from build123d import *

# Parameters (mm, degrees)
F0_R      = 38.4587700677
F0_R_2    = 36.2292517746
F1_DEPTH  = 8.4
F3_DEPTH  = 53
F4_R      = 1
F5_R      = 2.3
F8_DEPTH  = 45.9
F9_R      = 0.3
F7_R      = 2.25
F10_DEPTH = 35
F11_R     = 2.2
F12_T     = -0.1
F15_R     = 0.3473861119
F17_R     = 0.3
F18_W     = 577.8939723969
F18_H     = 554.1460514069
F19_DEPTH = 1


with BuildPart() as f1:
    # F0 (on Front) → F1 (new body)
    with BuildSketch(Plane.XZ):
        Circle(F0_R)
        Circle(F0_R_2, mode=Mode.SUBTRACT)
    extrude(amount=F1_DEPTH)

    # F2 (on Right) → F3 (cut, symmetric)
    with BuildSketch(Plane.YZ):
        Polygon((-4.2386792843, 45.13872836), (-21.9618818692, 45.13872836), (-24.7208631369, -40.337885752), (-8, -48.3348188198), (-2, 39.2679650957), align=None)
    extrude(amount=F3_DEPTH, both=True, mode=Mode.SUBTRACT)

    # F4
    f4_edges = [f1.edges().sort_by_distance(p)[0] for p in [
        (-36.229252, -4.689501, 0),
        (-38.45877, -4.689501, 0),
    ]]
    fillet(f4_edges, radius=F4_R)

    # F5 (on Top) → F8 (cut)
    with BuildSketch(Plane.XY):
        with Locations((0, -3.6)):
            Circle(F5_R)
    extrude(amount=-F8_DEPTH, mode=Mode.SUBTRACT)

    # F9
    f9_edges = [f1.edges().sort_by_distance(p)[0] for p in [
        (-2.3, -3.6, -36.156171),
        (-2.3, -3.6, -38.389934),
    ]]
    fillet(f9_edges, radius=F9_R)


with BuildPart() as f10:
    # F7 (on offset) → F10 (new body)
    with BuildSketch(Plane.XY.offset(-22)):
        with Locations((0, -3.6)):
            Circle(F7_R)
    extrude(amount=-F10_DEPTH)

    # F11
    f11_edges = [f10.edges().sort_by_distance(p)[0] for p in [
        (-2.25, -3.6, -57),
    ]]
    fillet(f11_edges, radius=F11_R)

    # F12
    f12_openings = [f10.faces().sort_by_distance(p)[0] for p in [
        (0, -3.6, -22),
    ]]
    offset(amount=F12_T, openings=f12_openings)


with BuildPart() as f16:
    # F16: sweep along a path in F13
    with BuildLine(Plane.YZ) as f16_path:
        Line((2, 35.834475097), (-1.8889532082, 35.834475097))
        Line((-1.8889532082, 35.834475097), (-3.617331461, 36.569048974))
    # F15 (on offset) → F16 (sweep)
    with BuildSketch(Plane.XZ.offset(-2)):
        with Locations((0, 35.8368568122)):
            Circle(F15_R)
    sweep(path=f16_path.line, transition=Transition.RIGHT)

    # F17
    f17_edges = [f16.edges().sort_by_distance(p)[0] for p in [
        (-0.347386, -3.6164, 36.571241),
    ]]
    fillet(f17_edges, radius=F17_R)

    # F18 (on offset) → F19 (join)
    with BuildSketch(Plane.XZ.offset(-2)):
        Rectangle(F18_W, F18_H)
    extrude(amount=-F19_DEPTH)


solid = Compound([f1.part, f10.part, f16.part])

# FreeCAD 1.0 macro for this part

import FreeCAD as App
import Part
import Sketcher
from FreeCAD import Vector


def edges_at(feature, points):
    """Names of the edges that pass closest to the given points."""
    edges = feature.Shape.Edges
    near = lambda p: min(range(len(edges)), key=lambda i: edges[i].distToShape(Part.Vertex(*p))[0])
    return sorted({f"Edge{near(p) + 1}" for p in points})


def faces_at(feature, points):
    """Names of the faces that lie closest to the given points."""
    faces = feature.Shape.Faces
    near = lambda p: min(range(len(faces)), key=lambda i: faces[i].distToShape(Part.Vertex(*p))[0])
    return sorted({f"Face{near(p) + 1}" for p in points})

doc = App.newDocument("Part")
params = doc.addObject("Spreadsheet::Sheet", "Params")
for row, (alias, value) in enumerate([
    ("pad1_length", "8.4 mm"),
    ("pocket1_length", "106 mm"),
    ("fillet_radius", "1 mm"),
    ("sketch3_diameter", "4.6 mm"),
    ("pocket2_length", "45.9 mm"),
    ("fillet2_radius", "0.3 mm"),
    ("sketch4_diameter", "4.5 mm"),
    ("pad2_length", "35 mm"),
    ("fillet3_radius", "2.2 mm"),
    ("thickness_wall", "0.1 mm"),
    ("fillet4_radius", "0.3 mm"),
    ("pad3_length", "1 mm"),
], start=1):
    params.set(f"A{row}", alias)
    params.set(f"B{row}", "=" + value)
    params.setAlias(f"B{row}", alias)

body = doc.addObject("PartDesign::Body", "Body")

sketch1 = doc.addObject("Sketcher::SketchObject", "Sketch")
body.addObject(sketch1)
sketch1.AttachmentSupport = (doc.XZ_Plane, [""])
sketch1.MapMode = "FlatFace"
sketch1.addGeometry([
    Part.Circle(Vector(0, 0, 0), Vector(0, 0, 1), 38),
    Part.Circle(Vector(0, 0, 0), Vector(0, 0, 1), 36),
], False)
sketch1.addConstraint([
    Sketcher.Constraint("Coincident", 0, 3, -1, 1),
    Sketcher.Constraint("Coincident", 1, 3, -1, 1),
    Sketcher.Constraint("Diameter", 0, 76.91754),
    Sketcher.Constraint("Diameter", 1, 72.458504),
])
pad1 = doc.addObject("PartDesign::Pad", "Pad")
body.addObject(pad1)
pad1.Profile = sketch1
pad1.setExpression("Length", "Params.pad1_length")

sketch2 = doc.addObject("Sketcher::SketchObject", "Sketch001")
body.addObject(sketch2)
sketch2.AttachmentSupport = (doc.YZ_Plane, [""])
sketch2.MapMode = "FlatFace"
sketch2.addGeometry([
    Part.LineSegment(Vector(-4, 45, 0), Vector(-22, 45, 0)),
    Part.LineSegment(Vector(-22, 45, 0), Vector(-25, -40, 0)),
    Part.LineSegment(Vector(-25, -40, 0), Vector(-8, -48, 0)),
    Part.LineSegment(Vector(-8, -48, 0), Vector(-2, 39, 0)),
    Part.LineSegment(Vector(-2, 39, 0), Vector(-4, 45, 0)),
], False)
sketch2.addConstraint([
    Sketcher.Constraint("Coincident", 0, 2, 1, 1),
    Sketcher.Constraint("Coincident", 1, 2, 2, 1),
    Sketcher.Constraint("Coincident", 2, 2, 3, 1),
    Sketcher.Constraint("Coincident", 3, 2, 4, 1),
    Sketcher.Constraint("Coincident", 4, 2, 0, 1),
    Sketcher.Constraint("Horizontal", 0),
    Sketcher.Constraint("DistanceX", 2, 2, -1, 1, 8.0),
    Sketcher.Constraint("DistanceX", 3, 2, -1, 1, 2.0),
    Sketcher.Constraint("Distance", 1, 85.521129),
    Sketcher.Constraint("DistanceX", 0, 2, 0, 1, 17.723203),
    Sketcher.Constraint("DistanceX", 0, 2, -1, 1, 21.961882),
    Sketcher.Constraint("DistanceY", -1, 1, 0, 2, 45.138728),
    Sketcher.Constraint("DistanceY", 2, 2, -1, 1, 48.334819),
    Sketcher.Constraint("DistanceX", 1, 2, 0, 2, 2.758981),
    Sketcher.Constraint("DistanceY", 1, 2, 3, 2, 79.605851),
])
pocket1 = doc.addObject("PartDesign::Pocket", "Pocket")
body.addObject(pocket1)
pocket1.Profile = sketch2
pocket1.setExpression("Length", "Params.pocket1_length")
pocket1.Midplane = True
doc.recompute()

fillet = doc.addObject("PartDesign::Fillet", "Fillet")
body.addObject(fillet)
fillet.Base = (pocket1, edges_at(pocket1, [(-36.229, -4.69, 0), (-38.459, -4.69, 0)]))
fillet.setExpression("Radius", "Params.fillet_radius")

sketch3 = doc.addObject("Sketcher::SketchObject", "Sketch002")
body.addObject(sketch3)
sketch3.AttachmentSupport = (doc.XY_Plane, [""])
sketch3.MapMode = "FlatFace"
sketch3.addGeometry(Part.Circle(Vector(0, -3.6, 0), Vector(0, 0, 1), 2.3), False)
sketch3.addConstraint([
    Sketcher.Constraint("PointOnObject", 0, 3, -2),
    Sketcher.Constraint("Diameter", 0, 4.6),
    Sketcher.Constraint("DistanceY", 0, 3, -1, 1, 3.6),
])
sketch3.setExpression("Constraints[1]", "Params.sketch3_diameter")
pocket2 = doc.addObject("PartDesign::Pocket", "Pocket001")
body.addObject(pocket2)
pocket2.Profile = sketch3
pocket2.setExpression("Length", "Params.pocket2_length")
doc.recompute()

fillet2 = doc.addObject("PartDesign::Fillet", "Fillet001")
body.addObject(fillet2)
fillet2.Base = (pocket2, edges_at(pocket2, [(-2.3, -3.6, -36.156), (-2.3, -3.6, -38.39)]))
fillet2.setExpression("Radius", "Params.fillet2_radius")
body2 = doc.addObject("PartDesign::Body", "Body001")

sketch4 = doc.addObject("Sketcher::SketchObject", "Sketch003")
body2.addObject(sketch4)
sketch4.AttachmentSupport = (doc.getObject("XY_Plane001"), [""])
sketch4.MapMode = "FlatFace"
sketch4.AttachmentOffset = App.Placement(Vector(0, 0, -22), App.Rotation())
sketch4.addGeometry(Part.Circle(Vector(0, -3.6, 0), Vector(0, 0, 1), 2.2), False)
sketch4.addConstraint([
    Sketcher.Constraint("PointOnObject", 0, 3, -2),
    Sketcher.Constraint("Diameter", 0, 4.5),
    Sketcher.Constraint("DistanceY", 0, 3, -1, 1, 3.6),
])
sketch4.setExpression("Constraints[1]", "Params.sketch4_diameter")
pad2 = doc.addObject("PartDesign::Pad", "Pad001")
body2.addObject(pad2)
pad2.Profile = sketch4
pad2.setExpression("Length", "Params.pad2_length")
pad2.Reversed = True
doc.recompute()

fillet3 = doc.addObject("PartDesign::Fillet", "Fillet002")
body2.addObject(fillet3)
fillet3.Base = (pad2, edges_at(pad2, [(-2.25, -3.6, -57)]))
fillet3.setExpression("Radius", "Params.fillet3_radius")
doc.recompute()

thickness = doc.addObject("PartDesign::Thickness", "Thickness")
body2.addObject(thickness)
thickness.Base = (fillet3, faces_at(fillet3, [(0, -3.6, -22)]))
thickness.setExpression("Value", "Params.thickness_wall")
thickness.Reversed = True
thickness.Join = "Arc"
body3 = doc.addObject("PartDesign::Body", "Body002")

sketch5 = doc.addObject("Sketcher::SketchObject", "Sketch004")
body3.addObject(sketch5)
sketch5.AttachmentSupport = (doc.getObject("XZ_Plane002"), [""])
sketch5.MapMode = "FlatFace"
sketch5.AttachmentOffset = App.Placement(Vector(0, 0, -2), App.Rotation())
sketch5.addGeometry(Part.Circle(Vector(0, 35.84, 0), Vector(0, 0, 1), 0.35), False)
sketch5.addConstraint([
    Sketcher.Constraint("PointOnObject", 0, 3, -2),
    Sketcher.Constraint("Diameter", 0, 0.694772),
    Sketcher.Constraint("DistanceY", -1, 1, 0, 3, 35.836857),
])

sketch6 = doc.addObject("Sketcher::SketchObject", "Sketch005")
body3.addObject(sketch6)
sketch6.AttachmentSupport = (doc.getObject("YZ_Plane002"), [""])
sketch6.MapMode = "FlatFace"
sketch6.addGeometry([
    Part.LineSegment(Vector(2, 35.8, 0), Vector(-1.9, 35.8, 0)),
    Part.LineSegment(Vector(-1.9, 35.8, 0), Vector(-3.6, 36.6, 0)),
], False)
sketch6.addConstraint([
    Sketcher.Constraint("Coincident", 0, 2, 1, 1),
    Sketcher.Constraint("Horizontal", 0),
    Sketcher.Constraint("DistanceX", -1, 1, 0, 1, 2.0),
    Sketcher.Constraint("Distance", 1, 1.878002),
    Sketcher.Constraint("DistanceX", 0, 2, 0, 1, 3.888953),
    Sketcher.Constraint("DistanceX", 1, 2, -1, 1, 3.617331),
    Sketcher.Constraint("DistanceY", -1, 1, 1, 2, 36.569049),
])
doc.recompute()

additivepipe = doc.addObject("PartDesign::AdditivePipe", "AdditivePipe")
body3.addObject(additivepipe)
additivepipe.Profile = sketch5
additivepipe.Spine = (sketch6, ["Edge1", "Edge2"])
additivepipe.Transition = "Right corner"
doc.recompute()

fillet4 = doc.addObject("PartDesign::Fillet", "Fillet003")
body3.addObject(fillet4)
fillet4.Base = (additivepipe, edges_at(additivepipe, [(-0.347, -3.616, 36.571)]))
fillet4.setExpression("Radius", "Params.fillet4_radius")

sketch7 = doc.addObject("Sketcher::SketchObject", "Sketch006")
body3.addObject(sketch7)
sketch7.AttachmentSupport = (doc.getObject("XZ_Plane002"), [""])
sketch7.MapMode = "FlatFace"
sketch7.AttachmentOffset = App.Placement(Vector(0, 0, -2), App.Rotation())
sketch7.addGeometry([
    Part.LineSegment(Vector(-289, 277, 0), Vector(-289, -277, 0)),
    Part.LineSegment(Vector(-289, -277, 0), Vector(289, -277, 0)),
    Part.LineSegment(Vector(289, -277, 0), Vector(289, 277, 0)),
    Part.LineSegment(Vector(289, 277, 0), Vector(-289, 277, 0)),
], False)
sketch7.addConstraint([
    Sketcher.Constraint("Coincident", 0, 2, 1, 1),
    Sketcher.Constraint("Coincident", 1, 2, 2, 1),
    Sketcher.Constraint("Coincident", 2, 2, 3, 1),
    Sketcher.Constraint("Coincident", 3, 2, 0, 1),
    Sketcher.Constraint("Vertical", 0),
    Sketcher.Constraint("Horizontal", 1),
    Sketcher.Constraint("Vertical", 2),
    Sketcher.Constraint("Horizontal", 3),
    Sketcher.Constraint("Symmetric", 0, 2, 2, 2, -1, 1),
    Sketcher.Constraint("DistanceY", 0, 2, 0, 1, 554.146051),
    Sketcher.Constraint("DistanceX", 1, 1, 1, 2, 577.893972),
])
pad3 = doc.addObject("PartDesign::Pad", "Pad002")
body3.addObject(pad3)
pad3.Profile = sketch7
pad3.setExpression("Length", "Params.pad3_length")
pad3.Reversed = True

doc.recompute()
